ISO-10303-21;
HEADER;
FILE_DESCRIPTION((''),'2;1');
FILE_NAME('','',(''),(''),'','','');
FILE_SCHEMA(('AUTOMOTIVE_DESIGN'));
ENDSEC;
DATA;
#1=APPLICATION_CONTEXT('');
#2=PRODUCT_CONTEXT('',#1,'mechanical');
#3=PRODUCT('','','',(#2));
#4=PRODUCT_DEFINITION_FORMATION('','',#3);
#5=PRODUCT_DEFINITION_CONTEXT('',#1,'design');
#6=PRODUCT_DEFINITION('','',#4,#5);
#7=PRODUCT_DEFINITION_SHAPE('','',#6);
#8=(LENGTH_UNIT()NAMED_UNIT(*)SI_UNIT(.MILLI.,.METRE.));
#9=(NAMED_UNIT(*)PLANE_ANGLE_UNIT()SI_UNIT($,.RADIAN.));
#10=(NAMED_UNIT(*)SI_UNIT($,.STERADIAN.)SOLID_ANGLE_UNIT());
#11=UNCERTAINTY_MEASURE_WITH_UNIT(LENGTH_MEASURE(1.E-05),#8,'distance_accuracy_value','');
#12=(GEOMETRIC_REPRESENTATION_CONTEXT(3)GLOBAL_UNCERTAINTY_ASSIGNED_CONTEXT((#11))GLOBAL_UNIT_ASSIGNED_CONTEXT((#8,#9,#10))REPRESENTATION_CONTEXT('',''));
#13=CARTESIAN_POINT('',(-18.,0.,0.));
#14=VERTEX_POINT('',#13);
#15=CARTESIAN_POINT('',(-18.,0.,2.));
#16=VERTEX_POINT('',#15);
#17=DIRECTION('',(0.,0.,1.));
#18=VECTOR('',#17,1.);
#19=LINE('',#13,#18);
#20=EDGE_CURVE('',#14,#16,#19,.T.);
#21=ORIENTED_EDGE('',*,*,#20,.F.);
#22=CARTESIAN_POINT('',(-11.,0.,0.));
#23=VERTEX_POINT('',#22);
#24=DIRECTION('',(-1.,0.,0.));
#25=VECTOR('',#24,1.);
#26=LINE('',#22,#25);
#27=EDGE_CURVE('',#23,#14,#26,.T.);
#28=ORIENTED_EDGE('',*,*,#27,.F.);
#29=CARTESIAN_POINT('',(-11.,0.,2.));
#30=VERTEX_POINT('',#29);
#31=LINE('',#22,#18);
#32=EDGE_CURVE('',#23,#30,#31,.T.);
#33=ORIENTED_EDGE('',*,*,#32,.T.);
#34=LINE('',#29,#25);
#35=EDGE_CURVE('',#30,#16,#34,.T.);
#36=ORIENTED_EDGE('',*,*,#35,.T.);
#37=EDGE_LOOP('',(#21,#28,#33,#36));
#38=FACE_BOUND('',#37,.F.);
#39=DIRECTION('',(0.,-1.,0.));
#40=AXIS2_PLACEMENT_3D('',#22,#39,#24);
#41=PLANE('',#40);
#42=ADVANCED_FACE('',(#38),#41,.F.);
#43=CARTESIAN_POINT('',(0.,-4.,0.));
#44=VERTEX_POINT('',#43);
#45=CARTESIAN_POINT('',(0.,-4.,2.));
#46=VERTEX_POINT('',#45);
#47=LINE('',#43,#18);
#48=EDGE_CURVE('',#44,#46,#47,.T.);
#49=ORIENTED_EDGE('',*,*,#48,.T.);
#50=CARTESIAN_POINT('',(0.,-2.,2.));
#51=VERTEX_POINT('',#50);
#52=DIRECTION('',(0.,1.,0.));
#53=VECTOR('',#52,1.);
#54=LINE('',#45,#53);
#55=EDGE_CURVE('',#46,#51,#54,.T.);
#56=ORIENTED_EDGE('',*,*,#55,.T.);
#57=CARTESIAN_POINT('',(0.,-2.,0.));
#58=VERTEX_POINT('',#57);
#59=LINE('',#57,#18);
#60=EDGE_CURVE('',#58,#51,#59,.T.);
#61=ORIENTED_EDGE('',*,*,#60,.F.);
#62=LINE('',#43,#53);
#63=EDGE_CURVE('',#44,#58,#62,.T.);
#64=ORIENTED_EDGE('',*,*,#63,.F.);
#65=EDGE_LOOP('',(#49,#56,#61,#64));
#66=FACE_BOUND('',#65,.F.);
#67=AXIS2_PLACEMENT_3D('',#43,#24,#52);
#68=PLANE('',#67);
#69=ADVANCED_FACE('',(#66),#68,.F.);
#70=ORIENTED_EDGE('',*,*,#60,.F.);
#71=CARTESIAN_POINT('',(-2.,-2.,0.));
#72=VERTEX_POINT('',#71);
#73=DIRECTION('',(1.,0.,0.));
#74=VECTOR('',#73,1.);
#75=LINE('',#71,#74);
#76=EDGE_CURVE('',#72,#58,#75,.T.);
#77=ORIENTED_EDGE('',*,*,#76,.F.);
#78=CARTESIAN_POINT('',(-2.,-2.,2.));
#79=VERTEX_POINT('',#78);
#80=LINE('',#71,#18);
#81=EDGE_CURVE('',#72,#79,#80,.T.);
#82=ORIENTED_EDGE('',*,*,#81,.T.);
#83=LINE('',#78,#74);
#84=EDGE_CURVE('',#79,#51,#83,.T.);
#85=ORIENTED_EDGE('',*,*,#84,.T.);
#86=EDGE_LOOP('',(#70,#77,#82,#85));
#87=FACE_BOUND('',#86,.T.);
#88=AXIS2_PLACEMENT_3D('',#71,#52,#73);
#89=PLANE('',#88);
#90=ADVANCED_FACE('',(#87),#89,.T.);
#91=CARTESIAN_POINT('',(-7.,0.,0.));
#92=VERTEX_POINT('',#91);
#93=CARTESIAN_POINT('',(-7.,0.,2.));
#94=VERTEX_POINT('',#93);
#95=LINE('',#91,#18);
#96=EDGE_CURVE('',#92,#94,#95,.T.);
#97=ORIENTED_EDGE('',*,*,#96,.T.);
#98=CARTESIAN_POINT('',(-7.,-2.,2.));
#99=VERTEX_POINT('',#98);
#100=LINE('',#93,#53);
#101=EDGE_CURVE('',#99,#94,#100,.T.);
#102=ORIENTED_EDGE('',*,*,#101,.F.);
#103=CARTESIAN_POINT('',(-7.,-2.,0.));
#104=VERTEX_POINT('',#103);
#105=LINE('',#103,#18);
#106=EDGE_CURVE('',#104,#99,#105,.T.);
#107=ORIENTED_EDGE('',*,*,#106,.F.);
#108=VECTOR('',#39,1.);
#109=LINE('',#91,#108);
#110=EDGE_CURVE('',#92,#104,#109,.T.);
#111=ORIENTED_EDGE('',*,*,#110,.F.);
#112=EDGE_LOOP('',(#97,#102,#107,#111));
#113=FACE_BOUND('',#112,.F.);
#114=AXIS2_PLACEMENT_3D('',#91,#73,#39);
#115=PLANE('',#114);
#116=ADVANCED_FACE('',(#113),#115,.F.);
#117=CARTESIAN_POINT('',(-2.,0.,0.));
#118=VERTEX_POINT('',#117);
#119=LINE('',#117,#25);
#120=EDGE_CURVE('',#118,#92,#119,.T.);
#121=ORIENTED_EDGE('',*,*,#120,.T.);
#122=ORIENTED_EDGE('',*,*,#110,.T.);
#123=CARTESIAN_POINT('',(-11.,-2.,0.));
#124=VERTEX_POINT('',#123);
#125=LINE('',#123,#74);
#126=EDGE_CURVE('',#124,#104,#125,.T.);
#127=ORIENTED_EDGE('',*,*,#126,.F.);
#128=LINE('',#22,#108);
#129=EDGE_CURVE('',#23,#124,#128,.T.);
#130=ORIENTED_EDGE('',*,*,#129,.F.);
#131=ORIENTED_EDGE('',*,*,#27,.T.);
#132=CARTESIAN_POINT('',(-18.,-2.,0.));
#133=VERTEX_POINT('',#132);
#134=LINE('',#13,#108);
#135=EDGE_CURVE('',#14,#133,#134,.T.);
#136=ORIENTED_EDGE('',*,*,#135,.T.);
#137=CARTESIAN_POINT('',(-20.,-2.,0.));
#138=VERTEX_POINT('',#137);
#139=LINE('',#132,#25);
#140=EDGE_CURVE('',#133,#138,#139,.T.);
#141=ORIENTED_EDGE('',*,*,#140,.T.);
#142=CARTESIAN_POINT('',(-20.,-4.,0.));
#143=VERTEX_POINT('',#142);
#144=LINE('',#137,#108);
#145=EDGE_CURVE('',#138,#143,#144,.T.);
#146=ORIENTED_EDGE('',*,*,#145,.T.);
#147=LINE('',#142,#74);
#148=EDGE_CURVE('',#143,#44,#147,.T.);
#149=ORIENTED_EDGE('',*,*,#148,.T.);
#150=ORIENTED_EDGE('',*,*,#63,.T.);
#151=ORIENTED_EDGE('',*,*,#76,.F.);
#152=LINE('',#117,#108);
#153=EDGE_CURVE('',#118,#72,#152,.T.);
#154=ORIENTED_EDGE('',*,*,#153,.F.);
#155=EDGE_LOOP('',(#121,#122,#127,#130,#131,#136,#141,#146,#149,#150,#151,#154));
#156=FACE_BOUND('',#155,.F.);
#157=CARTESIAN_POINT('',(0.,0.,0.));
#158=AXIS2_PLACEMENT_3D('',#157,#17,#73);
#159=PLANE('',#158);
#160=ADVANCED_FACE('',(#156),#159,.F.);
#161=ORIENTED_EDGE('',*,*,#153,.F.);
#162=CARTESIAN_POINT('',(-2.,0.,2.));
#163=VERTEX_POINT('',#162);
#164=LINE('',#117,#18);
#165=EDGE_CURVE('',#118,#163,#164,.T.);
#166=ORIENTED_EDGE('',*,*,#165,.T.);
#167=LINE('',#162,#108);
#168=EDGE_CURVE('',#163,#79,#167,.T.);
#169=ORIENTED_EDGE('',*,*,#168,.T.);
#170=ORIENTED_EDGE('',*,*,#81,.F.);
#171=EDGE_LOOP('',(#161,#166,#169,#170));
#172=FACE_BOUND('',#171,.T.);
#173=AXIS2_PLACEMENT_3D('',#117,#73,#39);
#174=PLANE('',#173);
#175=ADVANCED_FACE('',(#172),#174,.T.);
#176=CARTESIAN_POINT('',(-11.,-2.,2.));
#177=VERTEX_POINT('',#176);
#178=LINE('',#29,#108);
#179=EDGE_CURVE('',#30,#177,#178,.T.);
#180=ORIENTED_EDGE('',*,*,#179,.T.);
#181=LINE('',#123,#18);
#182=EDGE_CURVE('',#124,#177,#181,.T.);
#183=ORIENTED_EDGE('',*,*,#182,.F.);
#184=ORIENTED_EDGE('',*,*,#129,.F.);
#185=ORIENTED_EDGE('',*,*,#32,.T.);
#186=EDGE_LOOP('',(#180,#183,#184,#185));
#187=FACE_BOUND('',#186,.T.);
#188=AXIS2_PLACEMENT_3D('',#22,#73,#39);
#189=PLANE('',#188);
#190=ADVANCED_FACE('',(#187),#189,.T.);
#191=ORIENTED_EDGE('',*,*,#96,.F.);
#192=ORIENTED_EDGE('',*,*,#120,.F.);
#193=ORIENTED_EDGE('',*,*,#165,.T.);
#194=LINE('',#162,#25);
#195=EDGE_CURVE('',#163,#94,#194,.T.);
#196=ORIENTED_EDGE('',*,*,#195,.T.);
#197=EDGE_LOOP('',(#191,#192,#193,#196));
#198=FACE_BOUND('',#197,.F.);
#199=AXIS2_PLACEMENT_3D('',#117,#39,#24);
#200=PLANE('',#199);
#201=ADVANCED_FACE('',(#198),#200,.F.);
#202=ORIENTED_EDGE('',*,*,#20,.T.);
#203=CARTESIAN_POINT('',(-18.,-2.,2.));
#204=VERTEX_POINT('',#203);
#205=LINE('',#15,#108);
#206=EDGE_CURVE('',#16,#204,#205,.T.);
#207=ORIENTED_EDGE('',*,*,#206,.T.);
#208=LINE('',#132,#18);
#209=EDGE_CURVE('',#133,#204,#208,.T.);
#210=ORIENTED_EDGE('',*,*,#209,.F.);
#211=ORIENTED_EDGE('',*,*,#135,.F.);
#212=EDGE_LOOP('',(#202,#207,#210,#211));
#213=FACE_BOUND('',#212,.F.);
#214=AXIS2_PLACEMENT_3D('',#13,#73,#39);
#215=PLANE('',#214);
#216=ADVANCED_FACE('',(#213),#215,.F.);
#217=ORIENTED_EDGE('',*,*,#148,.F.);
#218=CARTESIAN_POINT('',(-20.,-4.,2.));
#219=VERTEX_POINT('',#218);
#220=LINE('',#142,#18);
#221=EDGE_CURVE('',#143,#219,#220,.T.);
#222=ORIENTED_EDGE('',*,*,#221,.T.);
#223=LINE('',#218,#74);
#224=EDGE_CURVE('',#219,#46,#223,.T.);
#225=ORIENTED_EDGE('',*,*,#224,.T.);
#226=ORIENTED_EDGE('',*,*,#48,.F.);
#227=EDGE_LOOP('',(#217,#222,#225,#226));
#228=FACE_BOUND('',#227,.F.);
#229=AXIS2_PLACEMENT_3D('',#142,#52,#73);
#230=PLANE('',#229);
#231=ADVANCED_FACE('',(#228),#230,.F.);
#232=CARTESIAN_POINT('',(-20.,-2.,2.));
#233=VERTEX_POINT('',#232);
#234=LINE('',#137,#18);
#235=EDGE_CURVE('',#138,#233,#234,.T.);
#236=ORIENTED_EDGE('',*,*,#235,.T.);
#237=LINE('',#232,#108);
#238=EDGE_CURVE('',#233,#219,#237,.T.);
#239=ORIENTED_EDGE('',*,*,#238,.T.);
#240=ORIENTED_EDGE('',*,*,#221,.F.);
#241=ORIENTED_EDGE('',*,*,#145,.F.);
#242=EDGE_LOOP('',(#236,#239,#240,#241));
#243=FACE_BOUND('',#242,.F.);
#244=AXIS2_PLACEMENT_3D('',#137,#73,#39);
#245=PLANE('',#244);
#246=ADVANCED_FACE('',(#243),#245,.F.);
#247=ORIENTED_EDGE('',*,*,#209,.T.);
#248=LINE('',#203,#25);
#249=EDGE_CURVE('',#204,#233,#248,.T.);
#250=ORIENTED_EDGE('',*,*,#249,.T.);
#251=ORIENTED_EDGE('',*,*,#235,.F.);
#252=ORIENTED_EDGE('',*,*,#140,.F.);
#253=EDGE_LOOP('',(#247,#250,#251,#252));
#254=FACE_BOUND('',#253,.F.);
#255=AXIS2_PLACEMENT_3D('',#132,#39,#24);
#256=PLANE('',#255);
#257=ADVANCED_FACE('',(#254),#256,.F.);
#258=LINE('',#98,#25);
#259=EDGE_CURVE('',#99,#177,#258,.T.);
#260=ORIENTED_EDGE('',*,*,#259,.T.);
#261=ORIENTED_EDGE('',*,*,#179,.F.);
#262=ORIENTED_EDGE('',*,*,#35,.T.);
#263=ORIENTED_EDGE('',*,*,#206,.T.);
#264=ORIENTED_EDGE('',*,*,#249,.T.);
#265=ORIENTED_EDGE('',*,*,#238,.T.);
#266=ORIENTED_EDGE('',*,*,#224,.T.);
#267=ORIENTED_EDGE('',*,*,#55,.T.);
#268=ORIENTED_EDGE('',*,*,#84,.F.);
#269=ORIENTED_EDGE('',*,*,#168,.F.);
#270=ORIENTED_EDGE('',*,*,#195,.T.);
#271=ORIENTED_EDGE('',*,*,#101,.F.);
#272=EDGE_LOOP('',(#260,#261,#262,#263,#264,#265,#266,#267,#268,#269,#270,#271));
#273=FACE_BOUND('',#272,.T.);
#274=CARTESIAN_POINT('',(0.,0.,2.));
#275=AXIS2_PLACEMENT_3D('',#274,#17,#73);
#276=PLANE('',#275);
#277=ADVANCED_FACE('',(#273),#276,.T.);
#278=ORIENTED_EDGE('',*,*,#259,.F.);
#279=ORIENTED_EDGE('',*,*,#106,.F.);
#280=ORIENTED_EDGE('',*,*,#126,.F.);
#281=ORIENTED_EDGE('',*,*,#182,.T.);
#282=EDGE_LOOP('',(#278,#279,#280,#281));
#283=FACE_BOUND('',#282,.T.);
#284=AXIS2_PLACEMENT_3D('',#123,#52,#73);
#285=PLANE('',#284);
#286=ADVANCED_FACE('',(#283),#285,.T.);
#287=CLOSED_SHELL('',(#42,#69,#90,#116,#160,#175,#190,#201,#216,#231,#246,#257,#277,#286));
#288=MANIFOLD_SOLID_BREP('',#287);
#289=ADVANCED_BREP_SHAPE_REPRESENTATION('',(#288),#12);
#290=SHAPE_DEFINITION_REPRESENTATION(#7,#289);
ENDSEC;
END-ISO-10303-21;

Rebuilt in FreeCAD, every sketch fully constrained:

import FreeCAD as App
import Part
import Sketcher

V = App.Vector
Q = App.Units.Quantity

doc = App.newDocument("Part")
body = doc.addObject("PartDesign::Body", "Body")

# Sketch on XY plane
sketch1 = body.newObject("Sketcher::SketchObject", "Sketch")
sketch1.AttachmentSupport = (doc.getObject("XY_Plane"), [""])
sketch1.MapMode = "FlatFace"
sketch1.addGeometry(Part.LineSegment(V(-20, -2, 0), V(-20, -4, 0)), False)
sketch1.addGeometry(Part.LineSegment(V(-20, -4, 0), V(0, -4, 0)), False)
sketch1.addGeometry(Part.LineSegment(V(0, -4, 0), V(0, -2, 0)), False)
sketch1.addGeometry(Part.LineSegment(V(0, -2, 0), V(-2, -2, 0)), False)
sketch1.addGeometry(Part.LineSegment(V(-2, -2, 0), V(-2, 0, 0)), False)
sketch1.addGeometry(Part.LineSegment(V(-2, 0, 0), V(-9, 0, 0)), False)
sketch1.addGeometry(Part.LineSegment(V(-9, 0, 0), V(-9, -2, 0)), False)
sketch1.addGeometry(Part.LineSegment(V(-9, -2, 0), V(-11, -2, 0)), False)
sketch1.addGeometry(Part.LineSegment(V(-11, -2, 0), V(-11, 0, 0)), False)
sketch1.addGeometry(Part.LineSegment(V(-11, 0, 0), V(-18, 0, 0)), False)
sketch1.addGeometry(Part.LineSegment(V(-18, 0, 0), V(-18, -2, 0)), False)
sketch1.addGeometry(Part.LineSegment(V(-18, -2, 0), V(-20, -2, 0)), False)
sketch1.addConstraint(Sketcher.Constraint("Coincident", 0, 2, 1, 1))
sketch1.addConstraint(Sketcher.Constraint("Coincident", 1, 2, 2, 1))
sketch1.addConstraint(Sketcher.Constraint("Coincident", 2, 2, 3, 1))
sketch1.addConstraint(Sketcher.Constraint("Coincident", 3, 2, 4, 1))
sketch1.addConstraint(Sketcher.Constraint("Coincident", 4, 2, 5, 1))
sketch1.addConstraint(Sketcher.Constraint("Coincident", 5, 2, 6, 1))
sketch1.addConstraint(Sketcher.Constraint("Coincident", 6, 2, 7, 1))
sketch1.addConstraint(Sketcher.Constraint("Coincident", 7, 2, 8, 1))
sketch1.addConstraint(Sketcher.Constraint("Coincident", 8, 2, 9, 1))
sketch1.addConstraint(Sketcher.Constraint("Coincident", 9, 2, 10, 1))
sketch1.addConstraint(Sketcher.Constraint("Coincident", 10, 2, 11, 1))
sketch1.addConstraint(Sketcher.Constraint("Coincident", 11, 2, 0, 1))
sketch1.addConstraint(Sketcher.Constraint("Vertical", 0))
sketch1.addConstraint(Sketcher.Constraint("Horizontal", 1))
sketch1.addConstraint(Sketcher.Constraint("Vertical", 2))
sketch1.addConstraint(Sketcher.Constraint("Horizontal", 3))
sketch1.addConstraint(Sketcher.Constraint("Vertical", 4))
sketch1.addConstraint(Sketcher.Constraint("Horizontal", 5))
sketch1.addConstraint(Sketcher.Constraint("Vertical", 6))
sketch1.addConstraint(Sketcher.Constraint("Horizontal", 7))
sketch1.addConstraint(Sketcher.Constraint("Vertical", 8))
sketch1.addConstraint(Sketcher.Constraint("Horizontal", 9))
sketch1.addConstraint(Sketcher.Constraint("Vertical", 10))
sketch1.addConstraint(Sketcher.Constraint("Horizontal", 11))
sketch1.addConstraint(Sketcher.Constraint("PointOnObject", 1, 2, -2))
sketch1.addConstraint(Sketcher.Constraint("PointOnObject", 4, 2, -1))
sketch1.addConstraint(Sketcher.Constraint("PointOnObject", 8, 2, -1))
sketch1.addConstraint(Sketcher.Constraint("Horizontal", 3, 2, 6, 2))
sketch1.addConstraint(Sketcher.Constraint("Horizontal", 7, 2, 10, 2))
sketch1.addConstraint(Sketcher.Constraint("Equal", 3, 7))
sketch1.addConstraint(Sketcher.Constraint("Equal", 5, 9))
sketch1.addConstraint(Sketcher.Constraint("Equal", 7, 11))
sketch1.addConstraint(Sketcher.Constraint("Equal", 11, 0))
sketch1.addConstraint(Sketcher.Constraint("Equal", 2, 4))
sketch1.addConstraint(Sketcher.Constraint("DistanceX", 1, 1, 1, 2, Q("20 mm")))
sketch1.addConstraint(Sketcher.Constraint("DistanceX", 3, 2, 3, 1, Q("2 mm")))
pad1 = body.newObject("PartDesign::Pad", "Pad")
pad1.Profile = sketch1
pad1.Length = 2

# Sketch on XY plane
sketch2 = body.newObject("Sketcher::SketchObject", "Sketch001")
sketch2.AttachmentSupport = (doc.getObject("XY_Plane"), [""])
sketch2.MapMode = "FlatFace"
sketch2.addGeometry(Part.LineSegment(V(-9, 0, 0), V(-7, 0, 0)), False)
sketch2.addGeometry(Part.LineSegment(V(-7, 0, 0), V(-7, -2, 0)), False)
sketch2.addGeometry(Part.LineSegment(V(-7, -2, 0), V(-9, -2, 0)), False)
sketch2.addGeometry(Part.LineSegment(V(-9, -2, 0), V(-9, 0, 0)), False)
sketch2.addConstraint(Sketcher.Constraint("Coincident", 0, 2, 1, 1))
sketch2.addConstraint(Sketcher.Constraint("Coincident", 1, 2, 2, 1))
sketch2.addConstraint(Sketcher.Constraint("Coincident", 2, 2, 3, 1))
sketch2.addConstraint(Sketcher.Constraint("Coincident", 3, 2, 0, 1))
sketch2.addConstraint(Sketcher.Constraint("Horizontal", 0))
sketch2.addConstraint(Sketcher.Constraint("Vertical", 1))
sketch2.addConstraint(Sketcher.Constraint("Horizontal", 2))
sketch2.addConstraint(Sketcher.Constraint("Vertical", 3))
sketch2.addConstraint(Sketcher.Constraint("PointOnObject", 0, 2, -1))
sketch2.addConstraint(Sketcher.Constraint("Equal", 2, 1))
sketch2.addConstraint(Sketcher.Constraint("DistanceX", 0, 1, 0, 2, Q("2 mm")))
sketch2.addConstraint(Sketcher.Constraint("DistanceX", 0, 2, -1, 1, Q("7 mm")))
pocket1 = body.newObject("PartDesign::Pocket", "Pocket")
pocket1.Profile = sketch2
pocket1.Length = 10
pocket1.Reversed = True

doc.recompute()
